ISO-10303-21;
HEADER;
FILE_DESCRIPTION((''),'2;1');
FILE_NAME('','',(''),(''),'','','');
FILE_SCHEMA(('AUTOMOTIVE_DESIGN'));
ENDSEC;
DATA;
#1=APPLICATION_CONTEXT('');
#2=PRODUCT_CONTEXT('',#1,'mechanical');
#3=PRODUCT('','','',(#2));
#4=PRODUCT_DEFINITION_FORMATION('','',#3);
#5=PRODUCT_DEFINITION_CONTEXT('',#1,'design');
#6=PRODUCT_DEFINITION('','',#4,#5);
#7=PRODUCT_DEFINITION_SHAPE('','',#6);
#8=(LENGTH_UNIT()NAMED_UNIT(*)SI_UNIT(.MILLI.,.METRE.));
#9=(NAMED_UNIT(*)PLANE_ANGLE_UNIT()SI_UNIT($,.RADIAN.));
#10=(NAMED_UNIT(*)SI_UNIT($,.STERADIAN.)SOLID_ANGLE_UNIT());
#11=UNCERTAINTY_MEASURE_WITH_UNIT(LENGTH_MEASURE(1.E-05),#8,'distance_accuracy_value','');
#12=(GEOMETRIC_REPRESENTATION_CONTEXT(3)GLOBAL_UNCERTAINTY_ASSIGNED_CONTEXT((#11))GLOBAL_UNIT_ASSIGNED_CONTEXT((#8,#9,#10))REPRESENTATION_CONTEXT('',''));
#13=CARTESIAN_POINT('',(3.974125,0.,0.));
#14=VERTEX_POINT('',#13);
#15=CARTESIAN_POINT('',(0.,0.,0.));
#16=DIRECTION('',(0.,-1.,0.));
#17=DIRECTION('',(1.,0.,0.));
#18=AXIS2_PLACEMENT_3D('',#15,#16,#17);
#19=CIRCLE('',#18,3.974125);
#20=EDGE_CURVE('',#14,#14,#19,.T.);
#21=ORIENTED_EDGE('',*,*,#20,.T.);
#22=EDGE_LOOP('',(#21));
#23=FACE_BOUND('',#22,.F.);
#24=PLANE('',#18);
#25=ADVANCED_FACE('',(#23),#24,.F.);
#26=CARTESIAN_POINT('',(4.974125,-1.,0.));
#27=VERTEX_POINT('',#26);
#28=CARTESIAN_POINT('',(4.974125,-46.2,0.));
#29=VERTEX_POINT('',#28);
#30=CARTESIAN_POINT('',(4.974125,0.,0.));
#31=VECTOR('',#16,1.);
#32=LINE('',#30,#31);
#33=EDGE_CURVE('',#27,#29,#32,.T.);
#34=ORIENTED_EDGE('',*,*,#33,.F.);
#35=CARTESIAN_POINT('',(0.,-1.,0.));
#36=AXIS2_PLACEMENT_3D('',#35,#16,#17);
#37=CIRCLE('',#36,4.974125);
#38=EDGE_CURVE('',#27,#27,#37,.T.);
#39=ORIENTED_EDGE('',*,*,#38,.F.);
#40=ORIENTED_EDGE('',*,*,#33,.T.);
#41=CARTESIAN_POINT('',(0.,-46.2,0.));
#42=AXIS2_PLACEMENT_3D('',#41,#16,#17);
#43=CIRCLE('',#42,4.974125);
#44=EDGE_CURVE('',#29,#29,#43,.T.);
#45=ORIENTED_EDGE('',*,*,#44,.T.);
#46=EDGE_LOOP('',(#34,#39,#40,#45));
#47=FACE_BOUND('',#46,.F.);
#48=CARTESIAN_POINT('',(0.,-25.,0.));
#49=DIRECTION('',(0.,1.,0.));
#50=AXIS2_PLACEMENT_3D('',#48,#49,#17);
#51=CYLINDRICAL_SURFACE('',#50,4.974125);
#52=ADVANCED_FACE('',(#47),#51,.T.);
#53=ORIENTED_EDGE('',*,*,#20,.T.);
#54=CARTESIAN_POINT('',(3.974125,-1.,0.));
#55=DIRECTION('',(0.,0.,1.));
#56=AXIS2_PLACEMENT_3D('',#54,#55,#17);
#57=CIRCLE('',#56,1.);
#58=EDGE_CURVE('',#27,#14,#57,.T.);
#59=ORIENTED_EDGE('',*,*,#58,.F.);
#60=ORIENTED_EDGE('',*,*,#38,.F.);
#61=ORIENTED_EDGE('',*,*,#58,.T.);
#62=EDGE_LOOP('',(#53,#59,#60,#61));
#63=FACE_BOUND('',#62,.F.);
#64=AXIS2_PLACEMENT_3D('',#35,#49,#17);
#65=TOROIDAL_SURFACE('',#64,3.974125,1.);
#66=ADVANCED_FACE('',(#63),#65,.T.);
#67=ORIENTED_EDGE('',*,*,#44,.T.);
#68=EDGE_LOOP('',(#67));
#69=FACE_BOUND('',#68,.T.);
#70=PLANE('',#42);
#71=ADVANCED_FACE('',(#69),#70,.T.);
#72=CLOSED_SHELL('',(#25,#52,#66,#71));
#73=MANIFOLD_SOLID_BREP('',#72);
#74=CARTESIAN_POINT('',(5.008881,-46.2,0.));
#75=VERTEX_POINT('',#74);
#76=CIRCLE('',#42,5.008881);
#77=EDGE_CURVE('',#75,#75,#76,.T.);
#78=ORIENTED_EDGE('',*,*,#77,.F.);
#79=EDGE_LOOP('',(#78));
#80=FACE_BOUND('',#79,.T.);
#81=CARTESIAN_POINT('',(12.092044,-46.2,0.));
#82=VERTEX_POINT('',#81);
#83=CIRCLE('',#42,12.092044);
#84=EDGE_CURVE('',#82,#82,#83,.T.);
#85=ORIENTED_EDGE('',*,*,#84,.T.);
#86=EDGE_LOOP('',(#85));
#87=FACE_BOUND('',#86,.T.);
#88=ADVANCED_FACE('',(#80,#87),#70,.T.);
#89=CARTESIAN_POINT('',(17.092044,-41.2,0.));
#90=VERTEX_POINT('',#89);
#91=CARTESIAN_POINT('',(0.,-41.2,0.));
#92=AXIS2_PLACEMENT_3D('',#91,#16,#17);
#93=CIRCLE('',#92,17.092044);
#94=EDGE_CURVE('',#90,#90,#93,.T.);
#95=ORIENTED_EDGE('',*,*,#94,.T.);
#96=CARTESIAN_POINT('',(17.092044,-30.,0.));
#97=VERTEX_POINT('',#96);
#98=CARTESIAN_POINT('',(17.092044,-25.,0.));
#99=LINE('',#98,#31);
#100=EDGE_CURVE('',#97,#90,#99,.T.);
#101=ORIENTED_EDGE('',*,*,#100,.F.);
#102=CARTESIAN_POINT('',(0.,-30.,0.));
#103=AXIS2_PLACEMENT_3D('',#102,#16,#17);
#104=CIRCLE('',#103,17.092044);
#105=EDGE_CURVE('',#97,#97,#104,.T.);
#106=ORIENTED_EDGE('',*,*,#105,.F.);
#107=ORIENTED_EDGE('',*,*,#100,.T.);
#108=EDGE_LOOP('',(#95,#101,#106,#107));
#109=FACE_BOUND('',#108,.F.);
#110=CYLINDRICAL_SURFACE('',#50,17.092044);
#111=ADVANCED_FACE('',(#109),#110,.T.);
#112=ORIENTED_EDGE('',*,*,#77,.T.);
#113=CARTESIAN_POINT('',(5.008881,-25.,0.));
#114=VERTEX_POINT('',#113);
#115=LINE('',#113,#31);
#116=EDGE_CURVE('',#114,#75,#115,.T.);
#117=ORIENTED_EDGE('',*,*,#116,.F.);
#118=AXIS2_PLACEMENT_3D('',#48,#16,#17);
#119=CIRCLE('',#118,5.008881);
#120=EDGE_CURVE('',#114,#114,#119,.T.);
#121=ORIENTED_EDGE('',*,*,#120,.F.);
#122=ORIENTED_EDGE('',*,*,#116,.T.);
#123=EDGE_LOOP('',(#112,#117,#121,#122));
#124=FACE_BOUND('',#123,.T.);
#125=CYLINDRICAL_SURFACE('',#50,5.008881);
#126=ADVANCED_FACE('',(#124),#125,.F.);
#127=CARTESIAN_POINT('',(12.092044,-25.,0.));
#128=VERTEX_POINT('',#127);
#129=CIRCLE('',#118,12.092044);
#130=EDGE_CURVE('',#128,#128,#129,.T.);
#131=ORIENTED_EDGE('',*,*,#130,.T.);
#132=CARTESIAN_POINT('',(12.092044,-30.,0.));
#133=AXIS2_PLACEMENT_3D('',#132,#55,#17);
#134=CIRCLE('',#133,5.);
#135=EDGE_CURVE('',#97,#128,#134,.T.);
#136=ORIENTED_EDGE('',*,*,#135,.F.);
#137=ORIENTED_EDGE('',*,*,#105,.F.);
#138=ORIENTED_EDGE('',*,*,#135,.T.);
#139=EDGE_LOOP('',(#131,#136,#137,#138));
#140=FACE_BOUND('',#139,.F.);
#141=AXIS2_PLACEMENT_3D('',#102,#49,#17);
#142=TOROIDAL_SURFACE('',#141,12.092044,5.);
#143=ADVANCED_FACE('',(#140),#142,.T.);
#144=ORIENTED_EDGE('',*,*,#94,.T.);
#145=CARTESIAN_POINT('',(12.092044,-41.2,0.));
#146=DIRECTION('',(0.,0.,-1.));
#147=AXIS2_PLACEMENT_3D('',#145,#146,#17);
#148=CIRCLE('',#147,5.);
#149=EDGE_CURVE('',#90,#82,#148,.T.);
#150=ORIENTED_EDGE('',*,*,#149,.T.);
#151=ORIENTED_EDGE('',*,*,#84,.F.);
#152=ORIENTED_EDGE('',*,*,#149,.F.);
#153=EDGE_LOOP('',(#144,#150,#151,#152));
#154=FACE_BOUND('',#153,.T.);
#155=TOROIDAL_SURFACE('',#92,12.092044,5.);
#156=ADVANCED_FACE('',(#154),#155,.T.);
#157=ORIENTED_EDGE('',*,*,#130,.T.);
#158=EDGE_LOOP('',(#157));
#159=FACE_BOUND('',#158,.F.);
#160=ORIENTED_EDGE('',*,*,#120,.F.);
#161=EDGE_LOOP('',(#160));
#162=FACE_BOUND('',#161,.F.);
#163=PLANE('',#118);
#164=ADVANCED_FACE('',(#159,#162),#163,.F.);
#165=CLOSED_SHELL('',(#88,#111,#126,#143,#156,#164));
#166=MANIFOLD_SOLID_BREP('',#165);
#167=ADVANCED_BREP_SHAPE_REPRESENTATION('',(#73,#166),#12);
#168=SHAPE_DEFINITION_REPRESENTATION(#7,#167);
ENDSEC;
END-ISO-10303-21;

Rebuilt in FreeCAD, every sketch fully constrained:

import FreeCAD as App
import Part
import Sketcher
from FreeCAD import Vector
Q = App.Units.Quantity


def edges_at(feature, points):
    """Names of the edges that pass closest to the given points."""
    edges = feature.Shape.Edges
    near = lambda p: min(range(len(edges)), key=lambda i: edges[i].distToShape(Part.Vertex(*p))[0])
    return sorted({f"Edge{near(p) + 1}" for p in points})

doc = App.newDocument("Part")
body = doc.addObject("PartDesign::Body", "Body")
body.AllowCompound = True

sketch1 = body.newObject("Sketcher::SketchObject", "Sketch")
sketch1.AttachmentSupport = (doc.getObject("XZ_Plane"), [""])
sketch1.MapMode = "FlatFace"
sketch1.addGeometry(Part.Circle(Vector(0, 0, 0), Vector(0, 0, 1), 5), False)
sketch1.addConstraint(Sketcher.Constraint("Coincident", 0, 3, -1, 1))
sketch1.addConstraint(Sketcher.Constraint("Diameter", 0, Q("9.94825 mm")))
pad1 = body.newObject("PartDesign::Pad", "Pad")
pad1.Profile = sketch1
pad1.Length = 25

sketch2 = body.newObject("Sketcher::SketchObject", "Sketch001")
sketch2.AttachmentSupport = (doc.getObject("XZ_Plane"), [""])
sketch2.MapMode = "FlatFace"
sketch2.AttachmentOffset = App.Placement(Vector(0, 0, 25), App.Rotation())
sketch2.addGeometry(Part.Circle(Vector(0, 0, 0), Vector(0, 0, 1), 17.1), False)
sketch2.addGeometry(Part.Circle(Vector(0, 0, 0), Vector(0, 0, 1), 5), False)
sketch2.addGeometry(Part.Circle(Vector(0, 0, 0), Vector(0, 0, 1), 5), False)
sketch2.addConstraint(Sketcher.Constraint("Coincident", 0, 3, -1, 1))
sketch2.addConstraint(Sketcher.Constraint("Coincident", 1, 3, -1, 1))
sketch2.addConstraint(Sketcher.Constraint("Coincident", 2, 3, -1, 1))
sketch2.addConstraint(Sketcher.Constraint("Diameter", 0, Q("34.184088 mm")))
sketch2.addConstraint(Sketcher.Constraint("Diameter", 1, Q("10.017762 mm")))
sketch2.addConstraint(Sketcher.Constraint("Diameter", 2, Q("9.94825 mm")))
pad2 = body.newObject("PartDesign::Pad", "Pad001")
pad2.Profile = sketch2
pad2.Length = 21.2
doc.recompute()

fillet = body.newObject("PartDesign::Fillet", "Fillet")
fillet.Base = (pad2, edges_at(pad2, [(-17.092, -46.2, 0)]))
fillet.Radius = 5
doc.recompute()

fillet2 = body.newObject("PartDesign::Fillet", "Fillet001")
fillet2.Base = (fillet, edges_at(fillet, [(-17.092, -25, 0)]))
fillet2.Radius = 5
doc.recompute()

fillet3 = body.newObject("PartDesign::Fillet", "Fillet002")
fillet3.Base = (fillet2, edges_at(fillet2, [(-4.974, 0, 0)]))
fillet3.Radius = 1

doc.recompute()
